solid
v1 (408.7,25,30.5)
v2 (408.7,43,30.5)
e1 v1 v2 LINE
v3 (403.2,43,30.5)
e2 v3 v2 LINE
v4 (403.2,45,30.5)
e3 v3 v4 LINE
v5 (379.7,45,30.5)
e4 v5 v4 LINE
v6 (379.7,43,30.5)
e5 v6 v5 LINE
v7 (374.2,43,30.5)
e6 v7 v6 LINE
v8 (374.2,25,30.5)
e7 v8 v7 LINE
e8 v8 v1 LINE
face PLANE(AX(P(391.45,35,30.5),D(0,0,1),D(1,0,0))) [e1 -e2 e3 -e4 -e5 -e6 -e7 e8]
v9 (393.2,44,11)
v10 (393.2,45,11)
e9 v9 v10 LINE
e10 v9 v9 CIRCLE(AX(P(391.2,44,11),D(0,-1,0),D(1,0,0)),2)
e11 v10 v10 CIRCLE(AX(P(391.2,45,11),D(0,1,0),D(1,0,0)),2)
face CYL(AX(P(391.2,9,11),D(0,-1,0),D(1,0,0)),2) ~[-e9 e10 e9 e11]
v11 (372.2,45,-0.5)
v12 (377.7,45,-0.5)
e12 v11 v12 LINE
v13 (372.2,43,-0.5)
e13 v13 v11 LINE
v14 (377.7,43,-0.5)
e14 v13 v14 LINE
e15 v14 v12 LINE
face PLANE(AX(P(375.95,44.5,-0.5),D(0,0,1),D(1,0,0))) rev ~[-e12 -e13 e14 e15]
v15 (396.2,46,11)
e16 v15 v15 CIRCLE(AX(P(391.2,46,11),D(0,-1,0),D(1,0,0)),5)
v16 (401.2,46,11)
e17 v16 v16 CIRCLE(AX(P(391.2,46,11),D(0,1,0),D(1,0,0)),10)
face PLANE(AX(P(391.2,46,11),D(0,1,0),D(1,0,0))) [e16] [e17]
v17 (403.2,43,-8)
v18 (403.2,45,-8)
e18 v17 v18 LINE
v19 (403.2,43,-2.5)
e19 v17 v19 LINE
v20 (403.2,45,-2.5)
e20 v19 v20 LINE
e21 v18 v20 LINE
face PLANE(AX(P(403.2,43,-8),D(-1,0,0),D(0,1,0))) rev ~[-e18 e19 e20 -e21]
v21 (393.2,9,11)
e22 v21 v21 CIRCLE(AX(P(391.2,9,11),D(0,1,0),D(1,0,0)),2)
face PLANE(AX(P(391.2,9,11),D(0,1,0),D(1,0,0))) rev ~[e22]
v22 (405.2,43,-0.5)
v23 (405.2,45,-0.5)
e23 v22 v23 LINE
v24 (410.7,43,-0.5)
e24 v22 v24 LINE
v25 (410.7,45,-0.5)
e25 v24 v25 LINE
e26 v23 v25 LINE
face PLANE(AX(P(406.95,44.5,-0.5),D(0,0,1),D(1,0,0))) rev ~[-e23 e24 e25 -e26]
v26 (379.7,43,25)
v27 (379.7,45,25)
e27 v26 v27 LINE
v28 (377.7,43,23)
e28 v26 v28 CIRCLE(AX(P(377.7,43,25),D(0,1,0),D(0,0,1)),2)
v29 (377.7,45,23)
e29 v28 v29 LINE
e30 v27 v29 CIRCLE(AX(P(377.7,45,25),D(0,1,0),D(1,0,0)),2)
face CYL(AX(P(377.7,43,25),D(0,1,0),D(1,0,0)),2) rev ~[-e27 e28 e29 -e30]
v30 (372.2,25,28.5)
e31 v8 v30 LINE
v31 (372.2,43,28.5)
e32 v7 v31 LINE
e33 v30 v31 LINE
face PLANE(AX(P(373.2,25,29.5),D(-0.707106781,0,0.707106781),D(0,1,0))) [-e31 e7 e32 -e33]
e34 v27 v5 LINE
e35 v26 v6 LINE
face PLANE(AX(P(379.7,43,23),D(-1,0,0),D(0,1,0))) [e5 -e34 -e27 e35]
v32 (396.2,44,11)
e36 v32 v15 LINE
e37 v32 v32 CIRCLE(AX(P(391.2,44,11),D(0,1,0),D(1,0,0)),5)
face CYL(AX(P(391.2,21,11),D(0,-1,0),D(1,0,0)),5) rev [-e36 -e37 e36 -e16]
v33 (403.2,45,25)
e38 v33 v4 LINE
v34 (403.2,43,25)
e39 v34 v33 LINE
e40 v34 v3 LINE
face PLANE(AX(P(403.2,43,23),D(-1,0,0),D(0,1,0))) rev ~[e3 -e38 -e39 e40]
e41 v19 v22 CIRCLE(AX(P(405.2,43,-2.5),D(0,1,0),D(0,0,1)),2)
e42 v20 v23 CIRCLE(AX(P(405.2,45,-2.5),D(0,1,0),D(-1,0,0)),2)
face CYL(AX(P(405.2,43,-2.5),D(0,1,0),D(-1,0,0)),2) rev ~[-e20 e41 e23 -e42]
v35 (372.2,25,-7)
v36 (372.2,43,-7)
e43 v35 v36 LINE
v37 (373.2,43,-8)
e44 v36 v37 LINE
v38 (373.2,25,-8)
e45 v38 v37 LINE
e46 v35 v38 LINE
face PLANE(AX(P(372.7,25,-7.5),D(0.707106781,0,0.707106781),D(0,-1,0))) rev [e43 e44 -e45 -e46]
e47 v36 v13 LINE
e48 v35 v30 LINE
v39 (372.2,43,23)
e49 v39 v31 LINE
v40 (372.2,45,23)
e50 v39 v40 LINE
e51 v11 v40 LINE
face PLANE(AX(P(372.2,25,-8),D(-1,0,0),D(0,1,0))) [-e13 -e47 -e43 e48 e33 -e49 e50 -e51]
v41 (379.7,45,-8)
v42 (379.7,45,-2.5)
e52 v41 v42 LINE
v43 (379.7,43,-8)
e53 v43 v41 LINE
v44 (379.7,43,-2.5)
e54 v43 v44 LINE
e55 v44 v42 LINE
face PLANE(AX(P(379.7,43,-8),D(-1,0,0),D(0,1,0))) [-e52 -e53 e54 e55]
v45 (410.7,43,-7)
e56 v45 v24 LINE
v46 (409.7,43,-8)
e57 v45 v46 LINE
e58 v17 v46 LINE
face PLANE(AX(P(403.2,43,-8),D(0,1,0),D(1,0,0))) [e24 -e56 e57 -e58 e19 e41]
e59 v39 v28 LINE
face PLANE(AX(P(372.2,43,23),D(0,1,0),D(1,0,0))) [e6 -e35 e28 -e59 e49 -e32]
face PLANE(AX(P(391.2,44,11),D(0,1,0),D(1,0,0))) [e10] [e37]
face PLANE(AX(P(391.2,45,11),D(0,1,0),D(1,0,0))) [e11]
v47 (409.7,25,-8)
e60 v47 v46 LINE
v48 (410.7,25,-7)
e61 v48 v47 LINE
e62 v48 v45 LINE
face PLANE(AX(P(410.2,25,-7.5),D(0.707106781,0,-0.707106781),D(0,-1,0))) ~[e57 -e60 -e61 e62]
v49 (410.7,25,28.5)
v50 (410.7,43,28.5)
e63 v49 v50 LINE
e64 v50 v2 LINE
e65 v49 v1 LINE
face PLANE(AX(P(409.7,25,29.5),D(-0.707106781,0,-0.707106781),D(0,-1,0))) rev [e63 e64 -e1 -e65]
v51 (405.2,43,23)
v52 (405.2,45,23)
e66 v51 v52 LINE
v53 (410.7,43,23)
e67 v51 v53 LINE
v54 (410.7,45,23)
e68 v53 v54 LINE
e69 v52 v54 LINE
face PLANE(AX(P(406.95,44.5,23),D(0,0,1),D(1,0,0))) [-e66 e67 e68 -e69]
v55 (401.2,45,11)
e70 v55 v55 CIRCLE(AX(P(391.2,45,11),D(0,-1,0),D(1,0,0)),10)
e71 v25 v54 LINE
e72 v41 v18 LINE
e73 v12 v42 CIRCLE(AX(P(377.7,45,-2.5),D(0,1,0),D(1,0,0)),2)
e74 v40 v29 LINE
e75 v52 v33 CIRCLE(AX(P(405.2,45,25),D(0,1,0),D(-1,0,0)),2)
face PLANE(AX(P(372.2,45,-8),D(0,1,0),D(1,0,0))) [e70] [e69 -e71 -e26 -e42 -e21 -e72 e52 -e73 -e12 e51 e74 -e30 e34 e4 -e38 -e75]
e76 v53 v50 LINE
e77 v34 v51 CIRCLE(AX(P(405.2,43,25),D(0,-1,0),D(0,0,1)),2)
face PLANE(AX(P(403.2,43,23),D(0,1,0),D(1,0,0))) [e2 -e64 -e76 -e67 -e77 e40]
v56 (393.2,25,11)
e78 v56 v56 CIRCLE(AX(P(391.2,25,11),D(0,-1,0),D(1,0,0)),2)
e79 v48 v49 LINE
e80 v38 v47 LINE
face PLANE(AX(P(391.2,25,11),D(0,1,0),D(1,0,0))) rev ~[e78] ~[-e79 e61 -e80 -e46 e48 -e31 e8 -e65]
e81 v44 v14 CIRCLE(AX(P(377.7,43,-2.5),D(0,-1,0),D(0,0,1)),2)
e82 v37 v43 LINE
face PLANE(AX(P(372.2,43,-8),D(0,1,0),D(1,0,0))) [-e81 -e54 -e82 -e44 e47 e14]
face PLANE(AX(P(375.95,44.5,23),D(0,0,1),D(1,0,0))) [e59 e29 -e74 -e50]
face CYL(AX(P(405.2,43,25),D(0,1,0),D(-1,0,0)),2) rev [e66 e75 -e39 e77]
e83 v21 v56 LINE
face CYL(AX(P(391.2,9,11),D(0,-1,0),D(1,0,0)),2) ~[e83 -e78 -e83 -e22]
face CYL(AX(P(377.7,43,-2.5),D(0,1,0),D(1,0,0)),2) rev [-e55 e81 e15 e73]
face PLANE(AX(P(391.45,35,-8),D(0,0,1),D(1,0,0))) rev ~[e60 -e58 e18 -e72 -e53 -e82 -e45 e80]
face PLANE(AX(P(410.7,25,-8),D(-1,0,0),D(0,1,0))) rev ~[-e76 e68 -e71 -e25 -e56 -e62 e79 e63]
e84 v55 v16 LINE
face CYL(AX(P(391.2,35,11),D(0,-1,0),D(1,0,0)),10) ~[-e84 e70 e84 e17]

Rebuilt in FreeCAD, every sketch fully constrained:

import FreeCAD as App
import Part
import Sketcher


def edges_at(feature, points):
    """Names of the edges that pass closest to the given points."""
    edges = feature.Shape.Edges
    near = lambda p: min(range(len(edges)), key=lambda i: edges[i].distToShape(Part.Vertex(*p))[0])
    return sorted({f"Edge{near(p) + 1}" for p in points})

doc = App.newDocument("Part")
params = doc.addObject("Spreadsheet::Sheet", "Params")
for row, (alias, value) in enumerate([
    ("sketch1_diameter", "4 mm"),
    ("pad1_length", "36 mm"),
    ("sketch2_diameter", "10 mm"),
    ("pad2_length", "31 mm"),
    ("sketch3_diameter", "20 mm"),
    ("pad3_length", "11 mm"),
    ("sketch4_diameter", "10 mm"),
    ("pad4_length", "19 mm"),
    ("sketch5_diameter", "10 mm"),
    ("pad5_length", "31 mm"),
    ("sketch6_height", "3 mm"),
    ("sketch6_width", "7.5 mm"),
    ("pad6_length", "7.5 mm"),
    ("fillet_radius", "2 mm"),
    ("sketch7_height", "3 mm"),
    ("sketch7_width", "7.5 mm"),
    ("pad7_length", "7.5 mm"),
    ("fillet2_radius", "2 mm"),
    ("sketch8_height", "3 mm"),
    ("sketch8_width", "7.5 mm"),
    ("pad8_length", "7.5 mm"),
    ("fillet3_radius", "2 mm"),
    ("sketch9_height", "3 mm"),
    ("sketch9_width", "7.5 mm"),
    ("pad9_length", "7.5 mm"),
    ("fillet4_radius", "2 mm"),
    ("sketch10_height", "20 mm"),
    ("sketch10_width", "38.5 mm"),
    ("pad10_length", "38.5 mm"),
    ("chamfer_size", "2 mm"),
    ("chamfer2_size", "2 mm"),
    ("chamfer3_size", "1 mm"),
], start=1):
    params.set(f"A{row}", alias)
    params.set(f"B{row}", "=" + value)
    params.setAlias(f"B{row}", alias)

body = doc.addObject("PartDesign::Body", "Body")

# Sketch on XY plane
sketch1 = body.newObject("Sketcher::SketchObject", "Sketch")
sketch1.AttachmentSupport = (doc.getObject("XY_Plane"), [""])
sketch1.MapMode = "FlatFace"
sketch1.addGeometry(Part.Circle(App.Vector(0, 0, 0), App.Vector(0, 0, 1), 2), False)
sketch1.addConstraint([
    Sketcher.Constraint("Coincident", 0, 3, -1, 1),
    Sketcher.Constraint("Diameter", 0, 4.0),
])
sketch1.setExpression("Constraints[1]", "Params.sketch1_diameter")
pad1 = body.newObject("PartDesign::Pad", "Pad")
pad1.Profile = sketch1
pad1.setExpression("Length", "Params.pad1_length")
body2 = doc.addObject("PartDesign::Body", "Body001")
doc.recompute()

body.Placement = App.Placement(App.Vector(0, 0, 0), App.Rotation(App.Vector(1, 0, 0), 270))
boolean = body2.newObject("PartDesign::Boolean", "Boolean")
boolean.Type = "Fuse"
boolean.addObjects([body])
body3 = doc.addObject("PartDesign::Body", "Body002")
doc.recompute()

body2.Placement = App.Placement(App.Vector(379, 9, 11), App.Rotation(App.Vector(0, 0, 1), 0))
boolean2 = body3.newObject("PartDesign::Boolean", "Boolean001")
boolean2.Type = "Fuse"
boolean2.addObjects([body2])
body4 = doc.addObject("PartDesign::Body", "Body003")

# Sketch on XY plane
sketch2 = body4.newObject("Sketcher::SketchObject", "Sketch001")
sketch2.AttachmentSupport = (doc.getObject("XY_Plane003"), [""])
sketch2.MapMode = "FlatFace"
sketch2.addGeometry(Part.Circle(App.Vector(0, 0, 0), App.Vector(0, 0, 1), 5), False)
sketch2.addConstraint([
    Sketcher.Constraint("Coincident", 0, 3, -1, 1),
    Sketcher.Constraint("Diameter", 0, 10.0),
])
sketch2.setExpression("Constraints[1]", "Params.sketch2_diameter")
pad2 = body4.newObject("PartDesign::Pad", "Pad001")
pad2.Profile = sketch2
pad2.setExpression("Length", "Params.pad2_length")
body5 = doc.addObject("PartDesign::Body", "Body004")
doc.recompute()

body4.Placement = App.Placement(App.Vector(0, 0, 0), App.Rotation(App.Vector(1, 0, 0), 270))
boolean3 = body5.newObject("PartDesign::Boolean", "Boolean002")
boolean3.Type = "Fuse"
boolean3.addObjects([body4])
body6 = doc.addObject("PartDesign::Body", "Body005")
doc.recompute()

body5.Placement = App.Placement(App.Vector(379, 55, 11), App.Rotation(App.Vector(0, 0, 1), 0))
boolean4 = body6.newObject("PartDesign::Boolean", "Boolean003")
boolean4.Type = "Fuse"
boolean4.addObjects([body5])
body7 = doc.addObject("PartDesign::Body", "Body006")

# Sketch on XY plane
sketch3 = body7.newObject("Sketcher::SketchObject", "Sketch002")
sketch3.AttachmentSupport = (doc.getObject("XY_Plane006"), [""])
sketch3.MapMode = "FlatFace"
sketch3.addGeometry(Part.Circle(App.Vector(0, 0, 0), App.Vector(0, 0, 1), 10), False)
sketch3.addConstraint([
    Sketcher.Constraint("Coincident", 0, 3, -1, 1),
    Sketcher.Constraint("Diameter", 0, 20.0),
])
sketch3.setExpression("Constraints[1]", "Params.sketch3_diameter")
pad3 = body7.newObject("PartDesign::Pad", "Pad002")
pad3.Profile = sketch3
pad3.setExpression("Length", "Params.pad3_length")
body8 = doc.addObject("PartDesign::Body", "Body007")
doc.recompute()

body7.Placement = App.Placement(App.Vector(0, 0, 0), App.Rotation(App.Vector(1, 0, 0), 270))
boolean5 = body8.newObject("PartDesign::Boolean", "Boolean004")
boolean5.Type = "Fuse"
boolean5.addObjects([body7])
body9 = doc.addObject("PartDesign::Body", "Body008")
doc.recompute()

body8.Placement = App.Placement(App.Vector(379, 69, 11), App.Rotation(App.Vector(0, 0, 1), 0))
boolean6 = body9.newObject("PartDesign::Boolean", "Boolean005")
boolean6.Type = "Fuse"
boolean6.addObjects([body8])
doc.recompute()

boolean7 = body9.newObject("PartDesign::Boolean", "Boolean006")
boolean7.Type = "Cut"
boolean7.addObjects([body6])
body10 = doc.addObject("PartDesign::Body", "Body009")
doc.recompute()

body9.Placement = App.Placement(App.Vector(0, -34, 0), App.Rotation(App.Vector(0, 0, 1), 0))
boolean8 = body10.newObject("PartDesign::Boolean", "Boolean007")
boolean8.Type = "Fuse"
boolean8.addObjects([body9])
body11 = doc.addObject("PartDesign::Body", "Body010")

# Sketch on XY plane
sketch4 = body11.newObject("Sketcher::SketchObject", "Sketch003")
sketch4.AttachmentSupport = (doc.getObject("XY_Plane010"), [""])
sketch4.MapMode = "FlatFace"
sketch4.addGeometry(Part.Circle(App.Vector(0, 0, 0), App.Vector(0, 0, 1), 5), False)
sketch4.addConstraint([
    Sketcher.Constraint("Coincident", 0, 3, -1, 1),
    Sketcher.Constraint("Diameter", 0, 10.0),
])
sketch4.setExpression("Constraints[1]", "Params.sketch4_diameter")
pad4 = body11.newObject("PartDesign::Pad", "Pad003")
pad4.Profile = sketch4
pad4.setExpression("Length", "Params.pad4_length")
body12 = doc.addObject("PartDesign::Body", "Body011")
doc.recompute()

body11.Placement = App.Placement(App.Vector(0, 0, 0), App.Rotation(App.Vector(1, 0, 0), 270))
boolean9 = body12.newObject("PartDesign::Boolean", "Boolean008")
boolean9.Type = "Fuse"
boolean9.addObjects([body11])
body13 = doc.addObject("PartDesign::Body", "Body012")
doc.recompute()

body12.Placement = App.Placement(App.Vector(379, 25, 11), App.Rotation(App.Vector(0, 0, 1), 0))
boolean10 = body13.newObject("PartDesign::Boolean", "Boolean009")
boolean10.Type = "Fuse"
boolean10.addObjects([body12])
body14 = doc.addObject("PartDesign::Body", "Body013")

# Sketch on XY plane
sketch5 = body14.newObject("Sketcher::SketchObject", "Sketch004")
sketch5.AttachmentSupport = (doc.getObject("XY_Plane013"), [""])
sketch5.MapMode = "FlatFace"
sketch5.addGeometry(Part.Circle(App.Vector(0, 0, 0), App.Vector(0, 0, 1), 5), False)
sketch5.addConstraint([
    Sketcher.Constraint("Coincident", 0, 3, -1, 1),
    Sketcher.Constraint("Diameter", 0, 10.0),
])
sketch5.setExpression("Constraints[1]", "Params.sketch5_diameter")
pad5 = body14.newObject("PartDesign::Pad", "Pad004")
pad5.Profile = sketch5
pad5.setExpression("Length", "Params.pad5_length")
body15 = doc.addObject("PartDesign::Body", "Body014")
doc.recompute()

body14.Placement = App.Placement(App.Vector(0, 0, 0), App.Rotation(App.Vector(1, 0, 0), 270))
boolean11 = body15.newObject("PartDesign::Boolean", "Boolean010")
boolean11.Type = "Fuse"
boolean11.addObjects([body14])
body16 = doc.addObject("PartDesign::Body", "Body015")
doc.recompute()

body15.Placement = App.Placement(App.Vector(379, 21, 11), App.Rotation(App.Vector(0, 0, 1), 0))
boolean12 = body16.newObject("PartDesign::Boolean", "Boolean011")
boolean12.Type = "Fuse"
boolean12.addObjects([body15])
body17 = doc.addObject("PartDesign::Body", "Body016")

# Sketch on XY plane
sketch6 = body17.newObject("Sketcher::SketchObject", "Sketch005")
sketch6.AttachmentSupport = (doc.getObject("XY_Plane016"), [""])
sketch6.MapMode = "FlatFace"
sketch6.AttachmentOffset = App.Placement(App.Vector(0, 0, -8), App.Rotation())
sketch6.addGeometry([
    Part.LineSegment(App.Vector(391, 46, 0), App.Vector(391, 43, 0)),
    Part.LineSegment(App.Vector(391, 43, 0), App.Vector(398.5, 43, 0)),
    Part.LineSegment(App.Vector(398.5, 43, 0), App.Vector(398.5, 46, 0)),
    Part.LineSegment(App.Vector(398.5, 46, 0), App.Vector(391, 46, 0)),
], False)
sketch6.addConstraint([
    Sketcher.Constraint("Coincident", 0, 2, 1, 1),
    Sketcher.Constraint("Coincident", 1, 2, 2, 1),
    Sketcher.Constraint("Coincident", 2, 2, 3, 1),
    Sketcher.Constraint("Coincident", 3, 2, 0, 1),
    Sketcher.Constraint("Vertical", 0),
    Sketcher.Constraint("Horizontal", 1),
    Sketcher.Constraint("Vertical", 2),
    Sketcher.Constraint("Horizontal", 3),
    Sketcher.Constraint("DistanceY", 0, 2, 0, 1, 3.0),
    Sketcher.Constraint("DistanceX", 1, 1, 1, 2, 7.5),
    Sketcher.Constraint("DistanceX", -1, 1, 0, 2, 391.0),
    Sketcher.Constraint("DistanceY", -1, 1, 0, 2, 43.0),
])
sketch6.setExpression("Constraints[8]", "Params.sketch6_height")
sketch6.setExpression("Constraints[9]", "Params.sketch6_width")
pad6 = body17.newObject("PartDesign::Pad", "Pad005")
pad6.Profile = sketch6
pad6.setExpression("Length", "Params.pad6_length")
doc.recompute()

fillet = body17.newObject("PartDesign::Fillet", "Fillet")
fillet.Base = (pad6, edges_at(pad6, [(391, 44.5, -0.5)]))
fillet.setExpression("Radius", "Params.fillet_radius")
body18 = doc.addObject("PartDesign::Body", "Body017")

# Sketch on XY plane
sketch7 = body18.newObject("Sketcher::SketchObject", "Sketch006")
sketch7.AttachmentSupport = (doc.getObject("XY_Plane017"), [""])
sketch7.MapMode = "FlatFace"
sketch7.AttachmentOffset = App.Placement(App.Vector(0, 0, -8), App.Rotation())
sketch7.addGeometry([
    Part.LineSegment(App.Vector(360, 46, 0), App.Vector(360, 43, 0)),
    Part.LineSegment(App.Vector(360, 43, 0), App.Vector(367.5, 43, 0)),
    Part.LineSegment(App.Vector(367.5, 43, 0), App.Vector(367.5, 46, 0)),
    Part.LineSegment(App.Vector(367.5, 46, 0), App.Vector(360, 46, 0)),
], False)
sketch7.addConstraint([
    Sketcher.Constraint("Coincident", 0, 2, 1, 1),
    Sketcher.Constraint("Coincident", 1, 2, 2, 1),
    Sketcher.Constraint("Coincident", 2, 2, 3, 1),
    Sketcher.Constraint("Coincident", 3, 2, 0, 1),
    Sketcher.Constraint("Vertical", 0),
    Sketcher.Constraint("Horizontal", 1),
    Sketcher.Constraint("Vertical", 2),
    Sketcher.Constraint("Horizontal", 3),
    Sketcher.Constraint("DistanceY", 0, 2, 0, 1, 3.0),
    Sketcher.Constraint("DistanceX", 1, 1, 1, 2, 7.5),
    Sketcher.Constraint("DistanceX", -1, 1, 0, 2, 360.0),
    Sketcher.Constraint("DistanceY", -1, 1, 0, 2, 43.0),
])
sketch7.setExpression("Constraints[8]", "Params.sketch7_height")
sketch7.setExpression("Constraints[9]", "Params.sketch7_width")
pad7 = body18.newObject("PartDesign::Pad", "Pad006")
pad7.Profile = sketch7
pad7.setExpression("Length", "Params.pad7_length")
doc.recompute()

fillet2 = body18.newObject("PartDesign::Fillet", "Fillet001")
fillet2.Base = (pad7, edges_at(pad7, [(367.5, 44.5, -0.5)]))
fillet2.setExpression("Radius", "Params.fillet2_radius")
body19 = doc.addObject("PartDesign::Body", "Body018")

# Sketch on XY plane
sketch8 = body19.newObject("Sketcher::SketchObject", "Sketch007")
sketch8.AttachmentSupport = (doc.getObject("XY_Plane018"), [""])
sketch8.MapMode = "FlatFace"
sketch8.AttachmentOffset = App.Placement(App.Vector(0, 0, 23), App.Rotation())
sketch8.addGeometry([
    Part.LineSegment(App.Vector(360, 46, 0), App.Vector(360, 43, 0)),
    Part.LineSegment(App.Vector(360, 43, 0), App.Vector(367.5, 43, 0)),
    Part.LineSegment(App.Vector(367.5, 43, 0), App.Vector(367.5, 46, 0)),
    Part.LineSegment(App.Vector(367.5, 46, 0), App.Vector(360, 46, 0)),
], False)
sketch8.addConstraint([
    Sketcher.Constraint("Coincident", 0, 2, 1, 1),
    Sketcher.Constraint("Coincident", 1, 2, 2, 1),
    Sketcher.Constraint("Coincident", 2, 2, 3, 1),
    Sketcher.Constraint("Coincident", 3, 2, 0, 1),
    Sketcher.Constraint("Vertical", 0),
    Sketcher.Constraint("Horizontal", 1),
    Sketcher.Constraint("Vertical", 2),
    Sketcher.Constraint("Horizontal", 3),
    Sketcher.Constraint("DistanceY", 0, 2, 0, 1, 3.0),
    Sketcher.Constraint("DistanceX", 1, 1, 1, 2, 7.5),
    Sketcher.Constraint("DistanceX", -1, 1, 0, 2, 360.0),
    Sketcher.Constraint("DistanceY", -1, 1, 0, 2, 43.0),
])
sketch8.setExpression("Constraints[8]", "Params.sketch8_height")
sketch8.setExpression("Constraints[9]", "Params.sketch8_width")
pad8 = body19.newObject("PartDesign::Pad", "Pad007")
pad8.Profile = sketch8
pad8.setExpression("Length", "Params.pad8_length")
doc.recompute()

fillet3 = body19.newObject("PartDesign::Fillet", "Fillet002")
fillet3.Base = (pad8, edges_at(pad8, [(367.5, 44.5, 23)]))
fillet3.setExpression("Radius", "Params.fillet3_radius")
body20 = doc.addObject("PartDesign::Body", "Body019")

# Sketch on XY plane
sketch9 = body20.newObject("Sketcher::SketchObject", "Sketch008")
sketch9.AttachmentSupport = (doc.getObject("XY_Plane019"), [""])
sketch9.MapMode = "FlatFace"
sketch9.AttachmentOffset = App.Placement(App.Vector(0, 0, 23), App.Rotation())
sketch9.addGeometry([
    Part.LineSegment(App.Vector(391, 46, 0), App.Vector(391, 43, 0)),
    Part.LineSegment(App.Vector(391, 43, 0), App.Vector(398.5, 43, 0)),
    Part.LineSegment(App.Vector(398.5, 43, 0), App.Vector(398.5, 46, 0)),
    Part.LineSegment(App.Vector(398.5, 46, 0), App.Vector(391, 46, 0)),
], False)
sketch9.addConstraint([
    Sketcher.Constraint("Coincident", 0, 2, 1, 1),
    Sketcher.Constraint("Coincident", 1, 2, 2, 1),
    Sketcher.Constraint("Coincident", 2, 2, 3, 1),
    Sketcher.Constraint("Coincident", 3, 2, 0, 1),
    Sketcher.Constraint("Vertical", 0),
    Sketcher.Constraint("Horizontal", 1),
    Sketcher.Constraint("Vertical", 2),
    Sketcher.Constraint("Horizontal", 3),
    Sketcher.Constraint("DistanceY", 0, 2, 0, 1, 3.0),
    Sketcher.Constraint("DistanceX", 1, 1, 1, 2, 7.5),
    Sketcher.Constraint("DistanceX", -1, 1, 0, 2, 391.0),
    Sketcher.Constraint("DistanceY", -1, 1, 0, 2, 43.0),
])
sketch9.setExpression("Constraints[8]", "Params.sketch9_height")
sketch9.setExpression("Constraints[9]", "Params.sketch9_width")
pad9 = body20.newObject("PartDesign::Pad", "Pad008")
pad9.Profile = sketch9
pad9.setExpression("Length", "Params.pad9_length")
doc.recompute()

fillet4 = body20.newObject("PartDesign::Fillet", "Fillet003")
fillet4.Base = (pad9, edges_at(pad9, [(391, 44.5, 23)]))
fillet4.setExpression("Radius", "Params.fillet4_radius")
body21 = doc.addObject("PartDesign::Body", "Body020")

# Sketch on XY plane
sketch10 = body21.newObject("Sketcher::SketchObject", "Sketch009")
sketch10.AttachmentSupport = (doc.getObject("XY_Plane020"), [""])
sketch10.MapMode = "FlatFace"
sketch10.AttachmentOffset = App.Placement(App.Vector(0, 0, -8), App.Rotation())
sketch10.addGeometry([
    Part.LineSegment(App.Vector(360, 45, 0), App.Vector(360, 25, 0)),
    Part.LineSegment(App.Vector(360, 25, 0), App.Vector(398, 25, 0)),
    Part.LineSegment(App.Vector(398, 25, 0), App.Vector(398, 45, 0)),
    Part.LineSegment(App.Vector(398, 45, 0), App.Vector(360, 45, 0)),
], False)
sketch10.addConstraint([
    Sketcher.Constraint("Coincident", 0, 2, 1, 1),
    Sketcher.Constraint("Coincident", 1, 2, 2, 1),
    Sketcher.Constraint("Coincident", 2, 2, 3, 1),
    Sketcher.Constraint("Coincident", 3, 2, 0, 1),
    Sketcher.Constraint("Vertical", 0),
    Sketcher.Constraint("Horizontal", 1),
    Sketcher.Constraint("Vertical", 2),
    Sketcher.Constraint("Horizontal", 3),
    Sketcher.Constraint("DistanceY", 0, 2, 0, 1, 20.0),
    Sketcher.Constraint("DistanceX", 1, 1, 1, 2, 38.5),
    Sketcher.Constraint("DistanceX", -1, 1, 0, 2, 360.0),
    Sketcher.Constraint("DistanceY", -1, 1, 0, 2, 25.0),
])
sketch10.setExpression("Constraints[8]", "Params.sketch10_height")
sketch10.setExpression("Constraints[9]", "Params.sketch10_width")
pad10 = body21.newObject("PartDesign::Pad", "Pad009")
pad10.Profile = sketch10
pad10.setExpression("Length", "Params.pad10_length")
doc.recompute()

chamfer = body21.newObject("PartDesign::Chamfer", "Chamfer")
chamfer.Base = (pad10, edges_at(pad10, [(398.5, 35, 30.5)]))
chamfer.setExpression("Size", "Params.chamfer_size")
doc.recompute()

chamfer2 = body21.newObject("PartDesign::Chamfer", "Chamfer001")
chamfer2.Base = (chamfer, edges_at(chamfer, [(360, 35, 30.5)]))
chamfer2.setExpression("Size", "Params.chamfer2_size")
doc.recompute()

chamfer3 = body21.newObject("PartDesign::Chamfer", "Chamfer002")
chamfer3.Base = (chamfer2, edges_at(chamfer2, [(398.5, 35, -8), (360, 35, -8)]))
chamfer3.setExpression("Size", "Params.chamfer3_size")
doc.recompute()

boolean13 = body21.newObject("PartDesign::Boolean", "Boolean012")
boolean13.Type = "Cut"
boolean13.addObjects([body20])
doc.recompute()

boolean14 = body21.newObject("PartDesign::Boolean", "Boolean013")
boolean14.Type = "Cut"
boolean14.addObjects([body19])
doc.recompute()

boolean15 = body21.newObject("PartDesign::Boolean", "Boolean014")
boolean15.Type = "Cut"
boolean15.addObjects([body18])
doc.recompute()

boolean16 = body21.newObject("PartDesign::Boolean", "Boolean015")
boolean16.Type = "Cut"
boolean16.addObjects([body17])
doc.recompute()

boolean17 = body21.newObject("PartDesign::Boolean", "Boolean016")
boolean17.Type = "Cut"
boolean17.addObjects([body16])
doc.recompute()

boolean18 = body21.newObject("PartDesign::Boolean", "Boolean017")
boolean18.Type = "Fuse"
boolean18.addObjects([body10])
doc.recompute()

boolean19 = body21.newObject("PartDesign::Boolean", "Boolean018")
boolean19.Type = "Fuse"
boolean19.addObjects([body13])
doc.recompute()

boolean20 = body21.newObject("PartDesign::Boolean", "Boolean019")
boolean20.Type = "Fuse"
boolean20.addObjects([body3])
body22 = doc.addObject("PartDesign::Body", "Body021")
doc.recompute()

body21.Placement = App.Placement(App.Vector(12.2, 0, 0), App.Rotation(App.Vector(0, 0, 1), 0))
boolean21 = body22.newObject("PartDesign::Boolean", "Boolean020")
boolean21.Type = "Fuse"
boolean21.addObjects([body21])

doc.recompute()
